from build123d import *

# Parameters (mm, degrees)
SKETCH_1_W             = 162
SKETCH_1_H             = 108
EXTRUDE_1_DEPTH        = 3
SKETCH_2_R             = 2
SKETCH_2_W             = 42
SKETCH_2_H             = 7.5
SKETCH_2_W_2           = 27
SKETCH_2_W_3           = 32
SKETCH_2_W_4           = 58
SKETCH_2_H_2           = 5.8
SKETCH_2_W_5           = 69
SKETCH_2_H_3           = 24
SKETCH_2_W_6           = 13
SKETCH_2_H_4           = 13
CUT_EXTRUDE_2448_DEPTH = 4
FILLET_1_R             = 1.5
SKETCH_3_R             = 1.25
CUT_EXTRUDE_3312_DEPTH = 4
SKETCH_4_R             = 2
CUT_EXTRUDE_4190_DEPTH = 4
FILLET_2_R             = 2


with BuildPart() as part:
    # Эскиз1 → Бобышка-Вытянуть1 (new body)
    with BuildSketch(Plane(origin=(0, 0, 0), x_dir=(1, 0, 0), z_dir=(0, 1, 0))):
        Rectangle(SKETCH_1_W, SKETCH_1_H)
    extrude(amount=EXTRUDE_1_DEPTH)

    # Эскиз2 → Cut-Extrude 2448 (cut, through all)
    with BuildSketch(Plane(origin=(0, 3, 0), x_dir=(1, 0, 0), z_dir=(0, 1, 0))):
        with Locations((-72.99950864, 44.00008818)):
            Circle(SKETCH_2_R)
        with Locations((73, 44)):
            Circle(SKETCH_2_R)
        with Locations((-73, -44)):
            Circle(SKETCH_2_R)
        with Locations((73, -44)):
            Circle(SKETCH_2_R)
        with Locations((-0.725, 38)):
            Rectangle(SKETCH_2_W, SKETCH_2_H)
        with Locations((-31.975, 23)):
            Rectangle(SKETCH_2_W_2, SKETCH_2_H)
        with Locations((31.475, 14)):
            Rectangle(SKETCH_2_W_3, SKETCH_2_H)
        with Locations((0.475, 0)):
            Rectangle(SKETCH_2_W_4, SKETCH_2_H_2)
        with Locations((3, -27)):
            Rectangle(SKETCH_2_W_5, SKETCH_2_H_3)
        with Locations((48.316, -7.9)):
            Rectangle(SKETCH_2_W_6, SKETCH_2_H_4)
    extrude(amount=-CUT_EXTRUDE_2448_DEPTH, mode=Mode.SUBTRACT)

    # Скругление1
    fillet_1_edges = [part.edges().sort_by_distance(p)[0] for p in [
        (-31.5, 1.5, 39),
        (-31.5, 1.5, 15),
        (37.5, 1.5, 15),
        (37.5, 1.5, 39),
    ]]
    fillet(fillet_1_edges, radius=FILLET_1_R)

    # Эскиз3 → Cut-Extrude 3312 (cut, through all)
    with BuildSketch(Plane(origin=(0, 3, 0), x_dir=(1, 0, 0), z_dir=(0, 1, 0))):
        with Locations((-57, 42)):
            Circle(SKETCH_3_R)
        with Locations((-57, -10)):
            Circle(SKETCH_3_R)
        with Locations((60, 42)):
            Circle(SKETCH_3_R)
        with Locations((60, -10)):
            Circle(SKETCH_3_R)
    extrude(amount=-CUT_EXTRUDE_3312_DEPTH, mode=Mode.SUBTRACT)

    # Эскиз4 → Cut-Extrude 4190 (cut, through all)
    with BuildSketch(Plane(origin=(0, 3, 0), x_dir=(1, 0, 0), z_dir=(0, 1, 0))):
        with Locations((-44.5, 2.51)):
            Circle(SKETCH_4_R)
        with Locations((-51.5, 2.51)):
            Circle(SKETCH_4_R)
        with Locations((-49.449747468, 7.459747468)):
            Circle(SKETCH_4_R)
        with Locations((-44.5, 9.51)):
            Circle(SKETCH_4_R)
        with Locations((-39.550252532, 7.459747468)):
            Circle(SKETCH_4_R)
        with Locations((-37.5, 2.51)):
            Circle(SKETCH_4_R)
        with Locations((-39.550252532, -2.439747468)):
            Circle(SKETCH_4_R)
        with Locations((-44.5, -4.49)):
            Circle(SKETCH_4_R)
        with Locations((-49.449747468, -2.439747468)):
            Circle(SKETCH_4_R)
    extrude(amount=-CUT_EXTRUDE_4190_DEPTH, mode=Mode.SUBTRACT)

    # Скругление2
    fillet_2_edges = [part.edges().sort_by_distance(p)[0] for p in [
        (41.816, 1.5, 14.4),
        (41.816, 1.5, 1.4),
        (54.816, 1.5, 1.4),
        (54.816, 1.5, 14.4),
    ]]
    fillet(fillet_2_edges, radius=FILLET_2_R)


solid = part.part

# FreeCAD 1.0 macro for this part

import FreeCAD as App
import Part
import Sketcher
from FreeCAD import Vector
Q = App.Units.Quantity


def edges_at(feature, points):
    """Names of the edges that pass closest to the given points."""
    edges = feature.Shape.Edges
    near = lambda p: min(range(len(edges)), key=lambda i: edges[i].distToShape(Part.Vertex(*p))[0])
    return sorted({f"Edge{near(p) + 1}" for p in points})


def add_polygon(sketch, points):
    """Adds a closed chain of lines whose ends are joined by coincident constraints."""
    first, n = sketch.GeometryCount, len(points)
    for a, b in zip(points, points[1:] + points[:1]):
        sketch.addGeometry(Part.LineSegment(App.Vector(*a, 0), App.Vector(*b, 0)), False)
    for i in range(n):
        sketch.addConstraint(Sketcher.Constraint("Coincident", first + i, 2, first + (i + 1) % n, 1))

doc = App.newDocument("Part")
params = doc.addObject("Spreadsheet::Sheet", "Params")
for row, (alias, value) in enumerate([
    ("sketch1_width", "162 mm"),
    ("sketch1_height", "108 mm"),
    ("pad1_length", "3 mm"),
    ("sketch2_diameter", "4 mm"),
    ("sketch2_width", "42 mm"),
    ("sketch2_width2", "27 mm"),
    ("sketch2_width3", "32 mm"),
    ("sketch2_width4", "58 mm"),
    ("fillet_radius", "1.5 mm"),
    ("sketch3_diameter", "2.5 mm"),
    ("sketch4_diameter", "4 mm"),
    ("fillet2_radius", "2 mm"),
], start=1):
    params.set(f"A{row}", alias)
    params.set(f"B{row}", "=" + value)
    params.setAlias(f"B{row}", alias)

body = doc.addObject("PartDesign::Body", "Body")

# Sketch on XZ plane
sketch1 = doc.addObject("Sketcher::SketchObject", "Sketch")
body.addObject(sketch1)
sketch1.AttachmentSupport = (doc.XZ_Plane, [""])
sketch1.MapMode = "FlatFace"
add_polygon(sketch1, [(-81, -54), (-81, 54), (81, 54), (81, -54)])  # lines 0-3
sketch1.addConstraint([
    Sketcher.Constraint("Vertical", 0),
    Sketcher.Constraint("Horizontal", 1),
    Sketcher.Constraint("Vertical", 2),
    Sketcher.Constraint("Horizontal", 3),
    Sketcher.Constraint("Symmetric", 0, 2, 2, 2, -1, 1),
    Sketcher.Constraint("DistanceX", 1, 1, 1, 2, Q("162 mm")),
    Sketcher.Constraint("DistanceY", 0, 1, 0, 2, Q("108 mm")),
])
sketch1.setExpression("Constraints[9]", "Params.sketch1_width")
sketch1.setExpression("Constraints[10]", "Params.sketch1_height")
pad1 = doc.addObject("PartDesign::Pad", "Pad")
body.addObject(pad1)
pad1.Profile = sketch1
pad1.setExpression("Length", "Params.pad1_length")
pad1.Reversed = True

# Sketch on XZ plane
sketch2 = doc.addObject("Sketcher::SketchObject", "Sketch001")
body.addObject(sketch2)
sketch2.AttachmentSupport = (doc.XZ_Plane, [""])
sketch2.MapMode = "FlatFace"
sketch2.AttachmentOffset = App.Placement(Vector(0, 0, -3), App.Rotation())
sketch2.addGeometry(Part.Circle(Vector(-73, -44, 0), Vector(0, 0, 1), 2), False)  # 0
sketch2.addGeometry(Part.Circle(Vector(73, -44, 0), Vector(0, 0, 1), 2), False)  # 1
sketch2.addGeometry(Part.Circle(Vector(-73, 44, 0), Vector(0, 0, 1), 2), False)  # 2
sketch2.addGeometry(Part.Circle(Vector(73, 44, 0), Vector(0, 0, 1), 2), False)  # 3
add_polygon(sketch2, [(-21.7, -41.8), (-21.7, -34.2), (20.3, -34.2), (20.3, -41.8)])  # lines 4-7
add_polygon(sketch2, [(-45.5, -26.8), (-45.5, -19.2), (-18.5, -19.2), (-18.5, -26.8)])  # lines 8-11
add_polygon(sketch2, [(15.5, -17.8), (15.5, -10.2), (47.5, -10.2), (47.5, -17.8)])  # lines 12-15
add_polygon(sketch2, [(-28.5, -2.9), (-28.5, 2.9), (29.5, 2.9), (29.5, -2.9)])  # lines 16-19
add_polygon(sketch2, [(-31.5, 15), (-31.5, 39), (37.5, 39), (37.5, 15)])  # lines 20-23
add_polygon(sketch2, [(41.8, 1.4), (41.8, 14.4), (54.8, 14.4), (54.8, 1.4)])  # lines 24-27
sketch2.addConstraint([
    Sketcher.Constraint("Vertical", 4),
    Sketcher.Constraint("Horizontal", 5),
    Sketcher.Constraint("Vertical", 6),
    Sketcher.Constraint("Horizontal", 7),
    Sketcher.Constraint("Vertical", 8),
    Sketcher.Constraint("Horizontal", 9),
    Sketcher.Constraint("Vertical", 10),
    Sketcher.Constraint("Horizontal", 11),
    Sketcher.Constraint("Vertical", 12),
    Sketcher.Constraint("Horizontal", 13),
    Sketcher.Constraint("Vertical", 14),
    Sketcher.Constraint("Horizontal", 15),
    Sketcher.Constraint("Vertical", 16),
    Sketcher.Constraint("Horizontal", 17),
    Sketcher.Constraint("Vertical", 18),
    Sketcher.Constraint("Horizontal", 19),
    Sketcher.Constraint("Vertical", 20),
    Sketcher.Constraint("Horizontal", 21),
    Sketcher.Constraint("Vertical", 22),
    Sketcher.Constraint("Horizontal", 23),
    Sketcher.Constraint("Vertical", 24),
    Sketcher.Constraint("Horizontal", 25),
    Sketcher.Constraint("Vertical", 26),
    Sketcher.Constraint("Horizontal", 27),
    Sketcher.Constraint("Equal", 0, 1),
    Sketcher.Constraint("Equal", 1, 2),
    Sketcher.Constraint("Equal", 2, 3),
    Sketcher.Constraint("Symmetric", 1, 3, 2, 3, -1, 1),
    Sketcher.Constraint("Symmetric", 2, 3, 3, 3, -2),
    Sketcher.Constraint("Equal", 6, 8),
    Sketcher.Constraint("Equal", 10, 12),
    Sketcher.Constraint("Equal", 27, 24),
    Sketcher.Constraint("Diameter", 0, Q("4 mm")),
    Sketcher.Constraint("DistanceX", 5, 1, 5, 2, Q("42 mm")),
    Sketcher.Constraint("DistanceX", 9, 1, 9, 2, Q("27 mm")),
    Sketcher.Constraint("DistanceX", 13, 1, 13, 2, Q("32 mm")),
    Sketcher.Constraint("DistanceX", 17, 1, 17, 2, Q("58 mm")),
    Sketcher.Constraint("DistanceX", 21, 1, 21, 2, Q("69 mm")),
    Sketcher.Constraint("DistanceX", 25, 1, 25, 2, Q("13 mm")),
    Sketcher.Constraint("DistanceY", 20, 1, 20, 2, Q("24 mm")),
    Sketcher.Constraint("DistanceY", 4, 1, 4, 2, Q("7.5 mm")),
    Sketcher.Constraint("DistanceY", 16, 1, 16, 2, Q("5.8 mm")),
    Sketcher.Constraint("DistanceX", -1, 1, 1, 3, Q("73 mm")),
    Sketcher.Constraint("DistanceY", 1, 3, -1, 1, Q("44 mm")),
    Sketcher.Constraint("DistanceY", -1, 1, 20, 2, Q("39 mm")),
    Sketcher.Constraint("DistanceY", 4, 2, 8, 2, Q("15 mm")),
    Sketcher.Constraint("DistanceY", 5, 2, 12, 2, Q("24 mm")),
    Sketcher.Constraint("DistanceX", 12, 2, 17, 2, Q("14 mm")),
    Sketcher.Constraint("DistanceY", -1, 1, 16, 2, Q("2.9 mm")),
    Sketcher.Constraint("DistanceX", 20, 2, -1, 1, Q("31.5 mm")),
    Sketcher.Constraint("DistanceY", -1, 1, 24, 2, Q("14.4 mm")),
    Sketcher.Constraint("DistanceX", 12, 2, 5, 2, Q("4.8 mm")),
    Sketcher.Constraint("DistanceY", 4, 2, -1, 1, Q("34.25 mm")),
    Sketcher.Constraint("DistanceX", 8, 2, 4, 2, Q("23.75 mm")),
    Sketcher.Constraint("DistanceX", 4, 2, -1, 1, Q("21.725 mm")),
    Sketcher.Constraint("DistanceX", -1, 1, 24, 2, Q("41.816 mm")),
    Sketcher.Constraint("DistanceX", 0, 3, -1, 1, Q("72.999509 mm")),
    Sketcher.Constraint("DistanceY", 0, 3, -1, 1, Q("44.000088 mm")),
])
sketch2.setExpression("Constraints[56]", "Params.sketch2_diameter")
sketch2.setExpression("Constraints[57]", "Params.sketch2_width")
sketch2.setExpression("Constraints[58]", "Params.sketch2_width2")
sketch2.setExpression("Constraints[59]", "Params.sketch2_width3")
sketch2.setExpression("Constraints[60]", "Params.sketch2_width4")
pocket1 = doc.addObject("PartDesign::Pocket", "Pocket")
body.addObject(pocket1)
pocket1.Profile = sketch2
pocket1.Type = "ThroughAll"
pocket1.Reversed = True
doc.recompute()

fillet = doc.addObject("PartDesign::Fillet", "Fillet")
body.addObject(fillet)
fillet.Base = (pocket1, edges_at(pocket1, [
    (-31.5, 1.5, 39),
    (-31.5, 1.5, 15),
    (37.5, 1.5, 15),
    (37.5, 1.5, 39),
]))
fillet.setExpression("Radius", "Params.fillet_radius")

# Sketch on XZ plane
sketch3 = doc.addObject("Sketcher::SketchObject", "Sketch002")
body.addObject(sketch3)
sketch3.AttachmentSupport = (doc.XZ_Plane, [""])
sketch3.MapMode = "FlatFace"
sketch3.AttachmentOffset = App.Placement(Vector(0, 0, -3), App.Rotation())
sketch3.addGeometry([
    Part.Circle(Vector(-57, -42, 0), Vector(0, 0, 1), 1.2),
    Part.Circle(Vector(-57, 10, 0), Vector(0, 0, 1), 1.2),
    Part.Circle(Vector(60, -42, 0), Vector(0, 0, 1), 1.2),
    Part.Circle(Vector(60, 10, 0), Vector(0, 0, 1), 1.2),
], False)
sketch3.addConstraint([
    Sketcher.Constraint("Equal", 0, 1),
    Sketcher.Constraint("Equal", 1, 2),
    Sketcher.Constraint("Equal", 2, 3),
    Sketcher.Constraint("Horizontal", 0, 3, 2, 3),
    Sketcher.Constraint("Horizontal", 1, 3, 3, 3),
    Sketcher.Constraint("Vertical", 0, 3, 1, 3),
    Sketcher.Constraint("Vertical", 2, 3, 3, 3),
    Sketcher.Constraint("Diameter", 0, Q("2.5 mm")),
    Sketcher.Constraint("DistanceX", 0, 3, -1, 1, Q("57 mm")),
    Sketcher.Constraint("DistanceY", 0, 3, -1, 1, Q("42 mm")),
    Sketcher.Constraint("DistanceY", -1, 1, 1, 3, Q("10 mm")),
    Sketcher.Constraint("DistanceX", -1, 1, 2, 3, Q("60 mm")),
])
sketch3.setExpression("Constraints[7]", "Params.sketch3_diameter")
pocket2 = doc.addObject("PartDesign::Pocket", "Pocket001")
body.addObject(pocket2)
pocket2.Profile = sketch3
pocket2.Type = "ThroughAll"
pocket2.Reversed = True

# Sketch on XZ plane
sketch4 = doc.addObject("Sketcher::SketchObject", "Sketch003")
body.addObject(sketch4)
sketch4.AttachmentSupport = (doc.XZ_Plane, [""])
sketch4.MapMode = "FlatFace"
sketch4.AttachmentOffset = App.Placement(Vector(0, 0, -3), App.Rotation())
sketch4.addGeometry([
    Part.Circle(Vector(-44.5, -2.5, 0), Vector(0, 0, 1), 2),  # 0
    Part.Circle(Vector(-51.5, -2.5, 0), Vector(0, 0, 1), 2),  # 1
    Part.Circle(Vector(-49.4, -7.5, 0), Vector(0, 0, 1), 2),  # 2
    Part.Circle(Vector(-44.5, -9.5, 0), Vector(0, 0, 1), 2),  # 3
    Part.Circle(Vector(-39.6, -7.5, 0), Vector(0, 0, 1), 2),  # 4
    Part.Circle(Vector(-37.5, -2.5, 0), Vector(0, 0, 1), 2),  # 5
    Part.Circle(Vector(-39.6, 2.4, 0), Vector(0, 0, 1), 2),  # 6
    Part.Circle(Vector(-44.5, 4.5, 0), Vector(0, 0, 1), 2),  # 7
    Part.Circle(Vector(-49.4, 2.4, 0), Vector(0, 0, 1), 2),  # 8
], False)
sketch4.addConstraint([
    Sketcher.Constraint("Equal", 0, 1),
    Sketcher.Constraint("Equal", 1, 2),
    Sketcher.Constraint("Equal", 2, 3),
    Sketcher.Constraint("Equal", 3, 4),
    Sketcher.Constraint("Equal", 4, 5),
    Sketcher.Constraint("Equal", 5, 6),
    Sketcher.Constraint("Equal", 6, 7),
    Sketcher.Constraint("Equal", 7, 8),
    Sketcher.Constraint("Horizontal", 0, 3, 1, 3),
    Sketcher.Constraint("Horizontal", 2, 3, 4, 3),
    Sketcher.Constraint("Horizontal", 1, 3, 5, 3),
    Sketcher.Constraint("Horizontal", 6, 3, 8, 3),
    Sketcher.Constraint("Vertical", 0, 3, 3, 3),
    Sketcher.Constraint("Vertical", 4, 3, 6, 3),
    Sketcher.Constraint("Vertical", 3, 3, 7, 3),
    Sketcher.Constraint("Vertical", 2, 3, 8, 3),
    Sketcher.Constraint("Diameter", 0, Q("4 mm")),
    Sketcher.Constraint("DistanceX", 1, 3, 0, 3, Q("7 mm")),
    Sketcher.Constraint("DistanceY", 3, 3, 0, 3, Q("7 mm")),
    Sketcher.Constraint("DistanceX", 0, 3, 5, 3, Q("7 mm")),
    Sketcher.Constraint("DistanceY", 0, 3, 7, 3, Q("7 mm")),
    Sketcher.Constraint("DistanceX", 0, 3, -1, 1, Q("44.5 mm")),
    Sketcher.Constraint("DistanceY", 0, 3, -1, 1, Q("2.51 mm")),
    Sketcher.Constraint("DistanceX", 2, 3, -1, 1, Q("49.449747 mm")),
    Sketcher.Constraint("DistanceY", 2, 3, -1, 1, Q("7.459747 mm")),
    Sketcher.Constraint("DistanceX", 4, 3, -1, 1, Q("39.550253 mm")),
    Sketcher.Constraint("DistanceY", -1, 1, 6, 3, Q("2.439747 mm")),
])
sketch4.setExpression("Constraints[16]", "Params.sketch4_diameter")
pocket3 = doc.addObject("PartDesign::Pocket", "Pocket002")
body.addObject(pocket3)
pocket3.Profile = sketch4
pocket3.Type = "ThroughAll"
pocket3.Reversed = True
doc.recompute()

fillet2 = doc.addObject("PartDesign::Fillet", "Fillet001")
body.addObject(fillet2)
fillet2.Base = (pocket3, edges_at(pocket3, [
    (41.816, 1.5, 14.4),
    (41.816, 1.5, 1.4),
    (54.816, 1.5, 1.4),
    (54.816, 1.5, 14.4),
]))
fillet2.setExpression("Radius", "Params.fillet2_radius")

doc.recompute()
